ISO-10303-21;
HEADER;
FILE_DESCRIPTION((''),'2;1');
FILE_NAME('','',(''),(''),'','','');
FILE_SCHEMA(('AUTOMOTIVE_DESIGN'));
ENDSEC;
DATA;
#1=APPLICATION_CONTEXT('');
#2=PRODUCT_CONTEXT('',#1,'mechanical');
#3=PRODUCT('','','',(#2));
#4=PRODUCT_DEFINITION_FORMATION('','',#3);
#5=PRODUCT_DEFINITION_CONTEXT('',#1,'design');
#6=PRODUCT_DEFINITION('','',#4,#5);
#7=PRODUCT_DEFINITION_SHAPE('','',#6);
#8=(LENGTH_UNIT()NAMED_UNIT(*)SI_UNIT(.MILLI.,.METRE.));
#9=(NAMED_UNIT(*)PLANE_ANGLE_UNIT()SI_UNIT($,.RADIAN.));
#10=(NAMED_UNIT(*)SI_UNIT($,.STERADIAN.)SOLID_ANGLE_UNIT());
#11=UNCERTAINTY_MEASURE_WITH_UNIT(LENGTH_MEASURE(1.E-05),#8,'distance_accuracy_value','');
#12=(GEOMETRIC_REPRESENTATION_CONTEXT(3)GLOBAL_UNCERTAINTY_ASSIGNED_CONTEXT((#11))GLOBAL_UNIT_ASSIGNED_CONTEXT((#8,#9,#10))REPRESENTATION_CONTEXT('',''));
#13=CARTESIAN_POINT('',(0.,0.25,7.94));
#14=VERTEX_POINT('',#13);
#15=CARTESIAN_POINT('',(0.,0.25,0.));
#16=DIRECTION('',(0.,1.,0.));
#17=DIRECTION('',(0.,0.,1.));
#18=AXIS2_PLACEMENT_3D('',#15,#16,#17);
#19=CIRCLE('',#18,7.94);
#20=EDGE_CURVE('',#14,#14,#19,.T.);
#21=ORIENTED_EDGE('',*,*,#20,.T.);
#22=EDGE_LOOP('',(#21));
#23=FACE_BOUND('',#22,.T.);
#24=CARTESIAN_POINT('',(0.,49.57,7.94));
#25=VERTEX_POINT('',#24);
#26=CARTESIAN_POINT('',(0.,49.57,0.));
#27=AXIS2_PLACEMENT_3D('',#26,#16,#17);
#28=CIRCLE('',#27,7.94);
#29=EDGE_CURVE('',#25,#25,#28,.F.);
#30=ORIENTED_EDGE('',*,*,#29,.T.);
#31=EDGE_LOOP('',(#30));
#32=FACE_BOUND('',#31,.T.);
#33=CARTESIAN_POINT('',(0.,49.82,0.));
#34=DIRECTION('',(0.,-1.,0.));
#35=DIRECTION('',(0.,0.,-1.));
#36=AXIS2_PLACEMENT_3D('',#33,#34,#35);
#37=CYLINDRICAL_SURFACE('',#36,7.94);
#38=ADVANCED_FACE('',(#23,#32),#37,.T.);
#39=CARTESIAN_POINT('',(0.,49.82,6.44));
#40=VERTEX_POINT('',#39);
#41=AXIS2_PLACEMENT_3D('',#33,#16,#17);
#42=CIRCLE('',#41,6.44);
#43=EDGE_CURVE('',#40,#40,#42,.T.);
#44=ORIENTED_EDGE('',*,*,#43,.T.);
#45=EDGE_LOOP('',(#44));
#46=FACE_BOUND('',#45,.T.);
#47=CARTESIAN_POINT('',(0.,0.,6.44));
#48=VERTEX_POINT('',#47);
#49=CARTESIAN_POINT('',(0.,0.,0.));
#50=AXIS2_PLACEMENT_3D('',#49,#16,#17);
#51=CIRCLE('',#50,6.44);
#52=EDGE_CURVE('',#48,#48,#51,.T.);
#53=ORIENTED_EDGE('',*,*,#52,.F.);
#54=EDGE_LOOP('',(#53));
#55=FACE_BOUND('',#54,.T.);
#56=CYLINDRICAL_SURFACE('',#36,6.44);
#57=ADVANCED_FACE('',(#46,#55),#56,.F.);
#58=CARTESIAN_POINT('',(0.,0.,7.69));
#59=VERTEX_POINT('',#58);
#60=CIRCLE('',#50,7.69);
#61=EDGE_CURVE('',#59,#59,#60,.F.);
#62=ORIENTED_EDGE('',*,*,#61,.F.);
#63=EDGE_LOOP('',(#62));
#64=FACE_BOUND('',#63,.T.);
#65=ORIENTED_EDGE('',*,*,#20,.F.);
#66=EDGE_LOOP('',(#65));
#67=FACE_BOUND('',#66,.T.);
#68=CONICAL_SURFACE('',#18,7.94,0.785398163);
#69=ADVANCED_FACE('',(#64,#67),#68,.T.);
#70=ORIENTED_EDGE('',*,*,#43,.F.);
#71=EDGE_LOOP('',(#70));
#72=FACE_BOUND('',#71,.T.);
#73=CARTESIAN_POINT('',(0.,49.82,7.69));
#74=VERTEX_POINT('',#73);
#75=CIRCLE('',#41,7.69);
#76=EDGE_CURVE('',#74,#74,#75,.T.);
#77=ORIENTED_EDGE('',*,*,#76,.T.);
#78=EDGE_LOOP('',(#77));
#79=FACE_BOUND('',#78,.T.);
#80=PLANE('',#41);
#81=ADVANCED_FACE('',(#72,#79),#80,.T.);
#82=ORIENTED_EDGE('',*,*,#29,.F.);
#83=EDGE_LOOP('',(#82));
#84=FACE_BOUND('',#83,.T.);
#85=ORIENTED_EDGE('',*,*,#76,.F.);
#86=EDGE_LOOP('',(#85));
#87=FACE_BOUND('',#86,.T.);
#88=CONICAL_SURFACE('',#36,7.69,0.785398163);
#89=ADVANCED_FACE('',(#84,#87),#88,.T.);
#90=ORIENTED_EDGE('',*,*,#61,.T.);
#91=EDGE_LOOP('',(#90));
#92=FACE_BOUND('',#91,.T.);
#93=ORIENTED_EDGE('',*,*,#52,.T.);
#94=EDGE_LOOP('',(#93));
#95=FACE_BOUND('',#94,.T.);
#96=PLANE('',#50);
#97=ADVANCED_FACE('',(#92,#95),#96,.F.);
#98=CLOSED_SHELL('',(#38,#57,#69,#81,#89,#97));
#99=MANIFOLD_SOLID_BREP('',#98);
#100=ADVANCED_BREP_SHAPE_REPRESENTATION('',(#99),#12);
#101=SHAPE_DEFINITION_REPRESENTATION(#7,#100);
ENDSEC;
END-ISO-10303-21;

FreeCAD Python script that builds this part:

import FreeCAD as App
import Part
import Sketcher
from FreeCAD import Vector
Q = App.Units.Quantity


def edges_at(feature, points):
    """Names of the edges that pass closest to the given points."""
    edges = feature.Shape.Edges
    near = lambda p: min(range(len(edges)), key=lambda i: edges[i].distToShape(Part.Vertex(*p))[0])
    return sorted({f"Edge{near(p) + 1}" for p in points})

doc = App.newDocument("Part")
body = doc.addObject("PartDesign::Body", "Body")

sketch1 = body.newObject("Sketcher::SketchObject", "Sketch")
sketch1.AttachmentSupport = (doc.getObject("XZ_Plane"), [""])
sketch1.MapMode = "FlatFace"
sketch1.addGeometry([
    Part.Circle(Vector(0, 0, 0), Vector(0, 0, 1), 8),
    Part.Circle(Vector(0, 0, 0), Vector(0, 0, 1), 6),
], False)
sketch1.addConstraint([
    Sketcher.Constraint("Coincident", 0, 3, -1, 1),
    Sketcher.Constraint("Coincident", 1, 3, -1, 1),
    Sketcher.Constraint("Diameter", 0, Q("15.88 mm")),
    Sketcher.Constraint("Diameter", 1, Q("12.88 mm")),
])
pad1 = body.newObject("PartDesign::Pad", "Pad")
pad1.Profile = sketch1
pad1.Length = 49.82
pad1.Reversed = True
doc.recompute()

chamfer = body.newObject("PartDesign::Chamfer", "Chamfer")
chamfer.Base = (pad1, edges_at(pad1, [(-7.94, 0, 0), (-7.94, 49.82, 0)]))
chamfer.Size = 0.25

doc.recompute()
